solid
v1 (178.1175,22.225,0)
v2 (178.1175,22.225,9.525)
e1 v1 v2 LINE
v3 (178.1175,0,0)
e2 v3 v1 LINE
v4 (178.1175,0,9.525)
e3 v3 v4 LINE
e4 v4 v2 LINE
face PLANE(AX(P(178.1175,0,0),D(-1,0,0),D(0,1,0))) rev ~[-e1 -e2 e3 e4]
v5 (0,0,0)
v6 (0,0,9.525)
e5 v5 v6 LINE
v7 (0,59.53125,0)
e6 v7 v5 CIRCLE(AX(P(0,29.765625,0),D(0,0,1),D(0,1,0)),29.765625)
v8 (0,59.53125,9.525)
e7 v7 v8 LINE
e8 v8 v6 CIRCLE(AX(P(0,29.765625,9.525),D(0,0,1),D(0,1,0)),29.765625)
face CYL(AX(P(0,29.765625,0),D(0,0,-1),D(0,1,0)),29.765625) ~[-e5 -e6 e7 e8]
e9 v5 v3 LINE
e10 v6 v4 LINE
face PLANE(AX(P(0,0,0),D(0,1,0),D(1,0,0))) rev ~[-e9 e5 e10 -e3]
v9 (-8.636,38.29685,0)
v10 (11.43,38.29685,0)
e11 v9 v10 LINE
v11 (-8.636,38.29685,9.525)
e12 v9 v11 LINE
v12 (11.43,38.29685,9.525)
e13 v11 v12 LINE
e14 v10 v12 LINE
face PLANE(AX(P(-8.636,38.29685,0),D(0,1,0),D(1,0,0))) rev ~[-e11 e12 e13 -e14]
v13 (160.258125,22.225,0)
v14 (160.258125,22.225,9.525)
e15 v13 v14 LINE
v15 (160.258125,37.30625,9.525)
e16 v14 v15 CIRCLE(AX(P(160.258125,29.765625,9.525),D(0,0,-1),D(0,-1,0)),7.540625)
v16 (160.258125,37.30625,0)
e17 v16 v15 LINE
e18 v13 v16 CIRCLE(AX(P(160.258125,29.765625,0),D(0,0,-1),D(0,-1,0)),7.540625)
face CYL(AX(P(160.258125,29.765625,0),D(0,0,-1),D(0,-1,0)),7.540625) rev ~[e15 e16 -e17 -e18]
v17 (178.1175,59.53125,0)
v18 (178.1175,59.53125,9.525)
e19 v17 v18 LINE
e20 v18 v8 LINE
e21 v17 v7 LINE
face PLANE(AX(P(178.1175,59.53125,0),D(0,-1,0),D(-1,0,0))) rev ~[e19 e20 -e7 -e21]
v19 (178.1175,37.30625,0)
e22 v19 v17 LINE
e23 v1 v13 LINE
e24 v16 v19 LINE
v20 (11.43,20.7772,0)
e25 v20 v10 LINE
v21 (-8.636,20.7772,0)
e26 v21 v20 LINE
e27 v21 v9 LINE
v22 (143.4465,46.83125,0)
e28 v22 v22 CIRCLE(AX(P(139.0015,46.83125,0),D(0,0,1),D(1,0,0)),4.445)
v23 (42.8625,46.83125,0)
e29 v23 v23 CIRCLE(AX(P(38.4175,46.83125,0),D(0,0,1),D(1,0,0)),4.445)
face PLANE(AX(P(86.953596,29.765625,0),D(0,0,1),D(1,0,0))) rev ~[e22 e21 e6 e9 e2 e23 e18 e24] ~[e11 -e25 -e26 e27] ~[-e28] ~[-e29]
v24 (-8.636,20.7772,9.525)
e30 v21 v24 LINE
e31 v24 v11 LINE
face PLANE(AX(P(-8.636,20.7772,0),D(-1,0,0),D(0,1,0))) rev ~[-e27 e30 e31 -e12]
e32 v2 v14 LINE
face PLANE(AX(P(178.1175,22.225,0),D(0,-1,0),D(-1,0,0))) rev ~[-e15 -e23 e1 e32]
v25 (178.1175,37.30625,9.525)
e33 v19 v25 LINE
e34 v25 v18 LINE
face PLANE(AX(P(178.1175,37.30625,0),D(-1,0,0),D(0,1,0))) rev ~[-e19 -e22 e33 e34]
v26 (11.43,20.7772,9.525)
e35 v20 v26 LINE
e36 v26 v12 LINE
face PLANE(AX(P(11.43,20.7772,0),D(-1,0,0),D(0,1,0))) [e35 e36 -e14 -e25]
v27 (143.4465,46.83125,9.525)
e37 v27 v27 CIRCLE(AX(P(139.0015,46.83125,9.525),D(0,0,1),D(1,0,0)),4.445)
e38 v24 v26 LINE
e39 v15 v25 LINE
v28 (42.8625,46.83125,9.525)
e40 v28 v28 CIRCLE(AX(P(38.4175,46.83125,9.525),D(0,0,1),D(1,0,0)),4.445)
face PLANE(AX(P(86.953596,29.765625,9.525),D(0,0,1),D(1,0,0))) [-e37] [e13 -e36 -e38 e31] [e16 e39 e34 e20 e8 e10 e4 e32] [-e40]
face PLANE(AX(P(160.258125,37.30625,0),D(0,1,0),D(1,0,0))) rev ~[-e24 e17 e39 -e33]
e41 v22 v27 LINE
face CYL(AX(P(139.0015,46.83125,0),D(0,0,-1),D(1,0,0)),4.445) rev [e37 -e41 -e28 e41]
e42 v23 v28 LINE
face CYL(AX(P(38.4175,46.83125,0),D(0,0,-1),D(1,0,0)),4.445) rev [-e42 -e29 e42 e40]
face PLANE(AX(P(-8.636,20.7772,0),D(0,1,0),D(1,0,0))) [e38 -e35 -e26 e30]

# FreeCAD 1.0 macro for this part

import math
import FreeCAD as App
import Part
import Sketcher
Q = App.Units.Quantity

doc = App.newDocument("Part")
body = doc.addObject("PartDesign::Body", "Body")

sketch1 = body.newObject("Sketcher::SketchObject", "Sketch")
sketch1.AttachmentSupport = (doc.getObject("XY_Plane"), [""])
sketch1.MapMode = "FlatFace"
sketch1.addGeometry(Part.ArcOfCircle(Part.Circle(App.Vector(0, 29.8, 0), App.Vector(0, 0, 1), 29.8), math.radians(90), math.radians(270)), False)
sketch1.addGeometry(Part.LineSegment(App.Vector(0, 0, 0), App.Vector(178.1, 0, 0)), False)
sketch1.addGeometry(Part.LineSegment(App.Vector(178.1, 0, 0), App.Vector(178.1, 22.2, 0)), False)
sketch1.addGeometry(Part.LineSegment(App.Vector(178.1, 22.2, 0), App.Vector(160.3, 22.2, 0)), False)
sketch1.addGeometry(Part.ArcOfCircle(Part.Circle(App.Vector(160.3, 29.8, 0), App.Vector(0, 0, 1), 7.5), math.radians(90), math.radians(270)), False)
sketch1.addGeometry(Part.LineSegment(App.Vector(160.3, 37.3, 0), App.Vector(178.1, 37.3, 0)), False)
sketch1.addGeometry(Part.LineSegment(App.Vector(178.1, 37.3, 0), App.Vector(178.1, 59.5, 0)), False)
sketch1.addGeometry(Part.LineSegment(App.Vector(178.1, 59.5, 0), App.Vector(0, 59.5, 0)), False)
sketch1.addGeometry(Part.LineSegment(App.Vector(11.4, 20.8, 0), App.Vector(-8.6, 20.8, 0)), False)
sketch1.addGeometry(Part.LineSegment(App.Vector(-8.6, 20.8, 0), App.Vector(-8.6, 38.3, 0)), False)
sketch1.addGeometry(Part.LineSegment(App.Vector(-8.6, 38.3, 0), App.Vector(11.4, 38.3, 0)), False)
sketch1.addGeometry(Part.LineSegment(App.Vector(11.4, 38.3, 0), App.Vector(11.4, 20.8, 0)), False)
sketch1.addGeometry(Part.Circle(App.Vector(38.4, 46.8, 0), App.Vector(0, 0, 1), 4.4), False)
sketch1.addGeometry(Part.Circle(App.Vector(139, 46.8, 0), App.Vector(0, 0, 1), 4.4), False)
sketch1.addConstraint(Sketcher.Constraint("Tangent", 0, 2, 1, 1))
sketch1.addConstraint(Sketcher.Constraint("Coincident", 1, 2, 2, 1))
sketch1.addConstraint(Sketcher.Constraint("Coincident", 2, 2, 3, 1))
sketch1.addConstraint(Sketcher.Constraint("Tangent", 3, 2, 4, 2))
sketch1.addConstraint(Sketcher.Constraint("Tangent", 4, 1, 5, 1))
sketch1.addConstraint(Sketcher.Constraint("Coincident", 5, 2, 6, 1))
sketch1.addConstraint(Sketcher.Constraint("Coincident", 6, 2, 7, 1))
sketch1.addConstraint(Sketcher.Constraint("Tangent", 7, 2, 0, 1))
sketch1.addConstraint(Sketcher.Constraint("Coincident", 8, 2, 9, 1))
sketch1.addConstraint(Sketcher.Constraint("Coincident", 9, 2, 10, 1))
sketch1.addConstraint(Sketcher.Constraint("Coincident", 10, 2, 11, 1))
sketch1.addConstraint(Sketcher.Constraint("Coincident", 11, 2, 8, 1))
sketch1.addConstraint(Sketcher.Constraint("Horizontal", 1))
sketch1.addConstraint(Sketcher.Constraint("Vertical", 2))
sketch1.addConstraint(Sketcher.Constraint("Horizontal", 3))
sketch1.addConstraint(Sketcher.Constraint("Horizontal", 5))
sketch1.addConstraint(Sketcher.Constraint("Vertical", 6))
sketch1.addConstraint(Sketcher.Constraint("Horizontal", 7))
sketch1.addConstraint(Sketcher.Constraint("Horizontal", 8))
sketch1.addConstraint(Sketcher.Constraint("Vertical", 9))
sketch1.addConstraint(Sketcher.Constraint("Horizontal", 10))
sketch1.addConstraint(Sketcher.Constraint("Vertical", 11))
sketch1.addConstraint(Sketcher.Constraint("Coincident", 0, 2, -1, 1))
sketch1.addConstraint(Sketcher.Constraint("Equal", 12, 13))
sketch1.addConstraint(Sketcher.Constraint("Horizontal", 0, 3, 4, 3))
sketch1.addConstraint(Sketcher.Constraint("Horizontal", 12, 3, 13, 3))
sketch1.addConstraint(Sketcher.Constraint("Vertical", 2, 2, 5, 2))
sketch1.addConstraint(Sketcher.Constraint("Diameter", 12, Q("0.35 in")))
sketch1.addConstraint(Sketcher.Constraint("Radius", 0, Q("1.171875 in")))
sketch1.addConstraint(Sketcher.Constraint("Radius", 4, Q("0.296875 in")))
sketch1.addConstraint(Sketcher.Constraint("DistanceX", 8, 2, 8, 1, Q("0.79 in")))
sketch1.addConstraint(Sketcher.Constraint("DistanceX", 12, 3, 1, 2, Q("5.5 in")))
sketch1.addConstraint(Sketcher.Constraint("DistanceY", 13, 3, 6, 2, Q("0.5 in")))
sketch1.addConstraint(Sketcher.Constraint("DistanceX", 3, 2, 3, 1, Q("0.703125 in")))
sketch1.addConstraint(Sketcher.Constraint("DistanceX", 8, 2, -1, 1, Q("0.34 in")))
sketch1.addConstraint(Sketcher.Constraint("DistanceX", 12, 3, 13, 3, Q("3.96 in")))
sketch1.addConstraint(Sketcher.Constraint("DistanceX", 1, 1, 1, 2, Q("7.0125 in")))
sketch1.addConstraint(Sketcher.Constraint("DistanceY", -1, 1, 8, 2, Q("0.818 in")))
sketch1.addConstraint(Sketcher.Constraint("DistanceY", 9, 2, 7, 2, Q("0.836 in")))
pad1 = body.newObject("PartDesign::Pad", "Pad")
pad1.Profile = sketch1
pad1.Length = Q("0.375 in")

doc.recompute()
